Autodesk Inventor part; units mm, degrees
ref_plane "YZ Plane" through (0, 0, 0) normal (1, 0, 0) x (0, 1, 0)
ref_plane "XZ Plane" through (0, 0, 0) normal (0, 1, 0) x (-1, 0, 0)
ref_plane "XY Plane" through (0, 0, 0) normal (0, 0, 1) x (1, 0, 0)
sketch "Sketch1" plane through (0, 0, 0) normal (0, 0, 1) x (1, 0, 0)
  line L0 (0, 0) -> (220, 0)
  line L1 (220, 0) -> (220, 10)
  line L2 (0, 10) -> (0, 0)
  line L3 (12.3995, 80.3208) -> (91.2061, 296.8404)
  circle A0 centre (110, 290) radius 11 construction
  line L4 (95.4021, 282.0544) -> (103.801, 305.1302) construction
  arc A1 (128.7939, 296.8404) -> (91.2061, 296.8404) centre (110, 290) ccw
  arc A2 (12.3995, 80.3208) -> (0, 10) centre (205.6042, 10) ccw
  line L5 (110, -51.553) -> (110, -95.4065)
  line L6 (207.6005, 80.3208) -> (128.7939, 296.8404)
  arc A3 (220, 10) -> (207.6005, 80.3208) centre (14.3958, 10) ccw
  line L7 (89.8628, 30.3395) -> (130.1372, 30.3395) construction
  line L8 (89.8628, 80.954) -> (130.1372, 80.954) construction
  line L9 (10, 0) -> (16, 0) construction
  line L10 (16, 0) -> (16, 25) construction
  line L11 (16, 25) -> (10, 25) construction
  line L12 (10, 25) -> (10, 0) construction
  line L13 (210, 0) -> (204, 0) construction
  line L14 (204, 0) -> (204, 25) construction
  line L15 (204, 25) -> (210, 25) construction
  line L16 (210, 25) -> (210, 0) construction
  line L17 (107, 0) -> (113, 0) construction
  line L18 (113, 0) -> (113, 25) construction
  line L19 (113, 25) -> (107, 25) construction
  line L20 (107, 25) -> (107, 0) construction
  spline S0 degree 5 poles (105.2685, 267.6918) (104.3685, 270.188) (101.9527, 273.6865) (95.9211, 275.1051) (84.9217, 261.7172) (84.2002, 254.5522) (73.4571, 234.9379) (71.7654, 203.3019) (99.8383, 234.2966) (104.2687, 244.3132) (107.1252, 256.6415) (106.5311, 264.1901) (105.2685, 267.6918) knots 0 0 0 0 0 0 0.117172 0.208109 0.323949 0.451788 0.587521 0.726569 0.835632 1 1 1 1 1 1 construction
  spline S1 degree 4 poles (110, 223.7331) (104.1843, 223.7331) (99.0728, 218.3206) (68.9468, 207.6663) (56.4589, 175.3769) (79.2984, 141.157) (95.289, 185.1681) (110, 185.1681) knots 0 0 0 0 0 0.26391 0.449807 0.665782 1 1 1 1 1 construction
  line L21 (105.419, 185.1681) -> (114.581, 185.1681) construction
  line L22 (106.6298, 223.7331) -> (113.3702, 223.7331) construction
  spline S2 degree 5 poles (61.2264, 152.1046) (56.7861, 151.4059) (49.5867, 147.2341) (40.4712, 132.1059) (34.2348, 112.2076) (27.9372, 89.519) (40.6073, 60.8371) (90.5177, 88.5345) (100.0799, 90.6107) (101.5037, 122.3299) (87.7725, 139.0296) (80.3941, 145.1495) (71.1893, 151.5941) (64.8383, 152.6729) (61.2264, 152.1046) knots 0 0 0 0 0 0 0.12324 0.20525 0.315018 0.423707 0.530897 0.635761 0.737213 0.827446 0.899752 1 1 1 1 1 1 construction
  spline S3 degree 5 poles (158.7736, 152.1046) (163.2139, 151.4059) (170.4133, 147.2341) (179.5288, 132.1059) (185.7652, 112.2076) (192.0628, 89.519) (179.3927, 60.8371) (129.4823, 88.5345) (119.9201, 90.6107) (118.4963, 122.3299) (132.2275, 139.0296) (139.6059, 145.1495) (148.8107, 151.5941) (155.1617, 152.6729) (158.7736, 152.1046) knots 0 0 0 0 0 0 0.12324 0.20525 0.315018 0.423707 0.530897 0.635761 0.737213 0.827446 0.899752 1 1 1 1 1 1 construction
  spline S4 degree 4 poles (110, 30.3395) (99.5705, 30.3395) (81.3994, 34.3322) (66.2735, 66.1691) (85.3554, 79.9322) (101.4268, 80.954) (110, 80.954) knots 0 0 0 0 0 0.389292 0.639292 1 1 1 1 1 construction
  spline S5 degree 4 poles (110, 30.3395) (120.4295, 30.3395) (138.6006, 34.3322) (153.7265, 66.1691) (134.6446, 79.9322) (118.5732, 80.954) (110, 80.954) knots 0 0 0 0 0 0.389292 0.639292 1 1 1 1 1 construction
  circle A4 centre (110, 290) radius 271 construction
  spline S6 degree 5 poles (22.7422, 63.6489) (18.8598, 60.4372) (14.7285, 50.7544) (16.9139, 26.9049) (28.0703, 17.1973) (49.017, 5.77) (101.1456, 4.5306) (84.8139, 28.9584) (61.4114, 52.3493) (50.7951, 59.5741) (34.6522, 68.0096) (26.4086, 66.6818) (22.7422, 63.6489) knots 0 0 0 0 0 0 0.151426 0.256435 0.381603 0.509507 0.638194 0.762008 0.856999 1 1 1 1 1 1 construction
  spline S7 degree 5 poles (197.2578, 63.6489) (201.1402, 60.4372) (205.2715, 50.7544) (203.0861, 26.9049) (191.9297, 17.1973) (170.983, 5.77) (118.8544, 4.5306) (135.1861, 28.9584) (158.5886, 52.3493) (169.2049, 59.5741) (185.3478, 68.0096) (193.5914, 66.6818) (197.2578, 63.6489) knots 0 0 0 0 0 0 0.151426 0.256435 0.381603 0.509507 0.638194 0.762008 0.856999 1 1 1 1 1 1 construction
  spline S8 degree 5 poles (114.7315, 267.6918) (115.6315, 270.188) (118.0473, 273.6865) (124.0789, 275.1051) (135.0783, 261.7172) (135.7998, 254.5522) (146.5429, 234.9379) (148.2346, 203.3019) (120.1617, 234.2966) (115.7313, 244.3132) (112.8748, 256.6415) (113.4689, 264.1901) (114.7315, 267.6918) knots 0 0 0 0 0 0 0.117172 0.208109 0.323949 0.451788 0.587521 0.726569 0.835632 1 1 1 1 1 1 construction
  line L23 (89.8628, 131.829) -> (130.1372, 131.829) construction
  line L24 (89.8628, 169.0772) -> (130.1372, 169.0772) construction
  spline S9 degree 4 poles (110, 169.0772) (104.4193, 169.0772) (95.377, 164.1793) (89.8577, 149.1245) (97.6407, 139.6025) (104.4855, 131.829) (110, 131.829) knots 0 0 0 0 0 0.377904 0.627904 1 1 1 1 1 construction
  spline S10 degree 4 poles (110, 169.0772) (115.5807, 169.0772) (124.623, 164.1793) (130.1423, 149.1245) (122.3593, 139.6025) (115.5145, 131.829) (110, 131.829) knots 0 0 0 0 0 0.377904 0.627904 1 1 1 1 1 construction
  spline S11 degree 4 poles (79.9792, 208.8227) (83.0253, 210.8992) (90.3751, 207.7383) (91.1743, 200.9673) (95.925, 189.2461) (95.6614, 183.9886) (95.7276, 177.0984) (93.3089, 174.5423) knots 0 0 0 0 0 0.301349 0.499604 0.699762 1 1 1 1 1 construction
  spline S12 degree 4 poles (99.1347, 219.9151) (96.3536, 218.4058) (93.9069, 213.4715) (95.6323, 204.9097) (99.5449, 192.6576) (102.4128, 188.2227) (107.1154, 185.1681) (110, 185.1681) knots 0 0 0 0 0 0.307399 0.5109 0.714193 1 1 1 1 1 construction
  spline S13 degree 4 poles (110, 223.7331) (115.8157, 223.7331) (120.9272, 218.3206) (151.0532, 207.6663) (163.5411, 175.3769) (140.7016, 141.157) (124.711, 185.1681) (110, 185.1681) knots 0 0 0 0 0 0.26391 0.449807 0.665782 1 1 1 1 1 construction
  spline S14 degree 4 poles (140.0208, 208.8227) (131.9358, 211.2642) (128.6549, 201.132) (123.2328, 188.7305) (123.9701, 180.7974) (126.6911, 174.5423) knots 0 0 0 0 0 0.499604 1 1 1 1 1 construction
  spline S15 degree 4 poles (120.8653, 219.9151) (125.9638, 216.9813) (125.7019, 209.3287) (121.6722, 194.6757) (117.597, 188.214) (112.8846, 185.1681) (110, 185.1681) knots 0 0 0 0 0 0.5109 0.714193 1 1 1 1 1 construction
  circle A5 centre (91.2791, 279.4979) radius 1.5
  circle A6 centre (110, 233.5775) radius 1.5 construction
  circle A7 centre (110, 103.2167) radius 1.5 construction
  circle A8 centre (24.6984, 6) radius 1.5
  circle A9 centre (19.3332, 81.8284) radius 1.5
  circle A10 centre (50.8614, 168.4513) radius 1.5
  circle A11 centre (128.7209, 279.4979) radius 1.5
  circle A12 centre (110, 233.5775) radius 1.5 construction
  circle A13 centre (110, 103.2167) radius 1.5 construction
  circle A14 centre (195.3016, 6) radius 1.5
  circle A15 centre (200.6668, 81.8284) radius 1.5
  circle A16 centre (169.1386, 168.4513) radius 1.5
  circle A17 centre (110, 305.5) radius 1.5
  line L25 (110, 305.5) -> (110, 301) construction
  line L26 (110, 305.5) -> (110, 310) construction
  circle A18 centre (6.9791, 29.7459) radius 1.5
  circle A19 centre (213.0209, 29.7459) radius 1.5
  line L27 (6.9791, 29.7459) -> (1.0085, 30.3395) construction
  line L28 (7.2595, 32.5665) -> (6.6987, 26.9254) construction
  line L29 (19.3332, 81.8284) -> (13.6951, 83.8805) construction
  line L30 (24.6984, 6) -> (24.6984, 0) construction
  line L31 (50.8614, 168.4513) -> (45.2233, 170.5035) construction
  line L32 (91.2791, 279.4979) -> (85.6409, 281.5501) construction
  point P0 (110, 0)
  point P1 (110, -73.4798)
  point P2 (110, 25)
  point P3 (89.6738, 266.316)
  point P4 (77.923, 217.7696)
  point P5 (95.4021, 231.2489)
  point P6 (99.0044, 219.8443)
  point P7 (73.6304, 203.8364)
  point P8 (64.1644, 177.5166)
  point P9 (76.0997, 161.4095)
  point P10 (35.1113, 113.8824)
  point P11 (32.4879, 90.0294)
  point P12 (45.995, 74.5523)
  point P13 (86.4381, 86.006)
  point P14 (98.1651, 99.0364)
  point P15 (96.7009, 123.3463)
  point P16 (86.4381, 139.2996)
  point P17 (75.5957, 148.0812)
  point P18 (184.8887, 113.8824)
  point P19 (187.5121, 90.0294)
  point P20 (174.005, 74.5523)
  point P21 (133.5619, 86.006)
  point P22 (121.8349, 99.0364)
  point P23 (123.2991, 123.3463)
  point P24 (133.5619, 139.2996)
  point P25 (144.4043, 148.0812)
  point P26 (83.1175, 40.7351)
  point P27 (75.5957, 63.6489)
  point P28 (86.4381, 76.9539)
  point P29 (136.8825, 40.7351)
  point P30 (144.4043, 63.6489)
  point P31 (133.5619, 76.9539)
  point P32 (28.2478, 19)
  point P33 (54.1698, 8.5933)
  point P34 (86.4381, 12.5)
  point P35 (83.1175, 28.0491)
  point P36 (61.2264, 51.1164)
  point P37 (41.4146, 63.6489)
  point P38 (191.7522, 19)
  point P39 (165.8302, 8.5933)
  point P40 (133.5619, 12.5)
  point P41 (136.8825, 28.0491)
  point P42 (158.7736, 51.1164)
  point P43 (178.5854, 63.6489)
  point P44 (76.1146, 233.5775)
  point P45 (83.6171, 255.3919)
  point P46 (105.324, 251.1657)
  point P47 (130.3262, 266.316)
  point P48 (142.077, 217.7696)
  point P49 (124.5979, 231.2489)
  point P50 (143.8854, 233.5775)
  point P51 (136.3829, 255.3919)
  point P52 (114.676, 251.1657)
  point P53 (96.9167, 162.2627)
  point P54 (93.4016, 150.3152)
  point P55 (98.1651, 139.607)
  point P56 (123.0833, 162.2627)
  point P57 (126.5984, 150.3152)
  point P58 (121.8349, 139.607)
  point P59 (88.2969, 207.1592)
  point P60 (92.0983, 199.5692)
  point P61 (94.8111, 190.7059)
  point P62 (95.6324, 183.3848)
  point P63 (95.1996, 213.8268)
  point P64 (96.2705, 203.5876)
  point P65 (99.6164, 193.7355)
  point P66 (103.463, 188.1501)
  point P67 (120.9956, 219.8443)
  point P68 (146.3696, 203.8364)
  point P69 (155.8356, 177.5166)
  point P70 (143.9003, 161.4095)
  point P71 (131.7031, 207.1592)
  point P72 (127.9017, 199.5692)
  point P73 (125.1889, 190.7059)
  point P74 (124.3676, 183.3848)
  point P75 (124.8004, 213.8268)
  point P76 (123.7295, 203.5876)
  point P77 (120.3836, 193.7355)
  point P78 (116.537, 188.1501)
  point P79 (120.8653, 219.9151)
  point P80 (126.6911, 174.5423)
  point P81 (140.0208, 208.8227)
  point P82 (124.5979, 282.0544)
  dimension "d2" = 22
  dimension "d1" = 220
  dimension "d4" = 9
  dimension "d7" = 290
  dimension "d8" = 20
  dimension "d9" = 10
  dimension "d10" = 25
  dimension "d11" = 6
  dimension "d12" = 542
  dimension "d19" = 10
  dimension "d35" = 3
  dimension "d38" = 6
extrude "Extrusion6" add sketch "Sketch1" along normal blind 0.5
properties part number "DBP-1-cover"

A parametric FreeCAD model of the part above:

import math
import FreeCAD as App
import Part
import Sketcher

V = App.Vector
Q = App.Units.Quantity

doc = App.newDocument("Part")
body = doc.addObject("PartDesign::Body", "Body")

sketch1 = body.newObject("Sketcher::SketchObject", "Sketch")
sketch1.AttachmentSupport = (doc.getObject("XY_Plane"), [""])
sketch1.MapMode = "FlatFace"
sketch1.addGeometry([
    Part.LineSegment(V(0, 10, 0), V(0, 0, 0)),
    Part.LineSegment(V(0, 0, 0), V(220, 0, 0)),
    Part.LineSegment(V(220, 0, 0), V(220, 10, 0)),
    Part.ArcOfCircle(Part.Circle(V(14.4, 10, 0), V(0, 0, 1), 205.6), math.radians(0), math.radians(20)),
    Part.LineSegment(V(207.6, 80.3, 0), V(128.8, 296.8, 0)),
    Part.ArcOfCircle(Part.Circle(V(110, 290, 0), V(0, 0, 1), 20), math.radians(20), math.radians(160)),
    Part.LineSegment(V(91.2, 296.8, 0), V(12.4, 80.3, 0)),
    Part.ArcOfCircle(Part.Circle(V(205.6, 10, 0), V(0, 0, 1), 205.6), math.radians(160), math.radians(180)),
    Part.Circle(V(24.7, 6, 0), V(0, 0, 1), 1.5),
    Part.Circle(V(7, 29.7, 0), V(0, 0, 1), 1.5),
    Part.Circle(V(19.3, 81.8, 0), V(0, 0, 1), 1.5),
    Part.Circle(V(195.3, 6, 0), V(0, 0, 1), 1.5),
    Part.Circle(V(213, 29.7, 0), V(0, 0, 1), 1.5),
    Part.Circle(V(200.7, 81.8, 0), V(0, 0, 1), 1.5),
    Part.Circle(V(50.9, 168.5, 0), V(0, 0, 1), 1.5),
    Part.Circle(V(91.3, 279.5, 0), V(0, 0, 1), 1.5),
    Part.Circle(V(110, 305.5, 0), V(0, 0, 1), 1.5),
    Part.Circle(V(169.1, 168.5, 0), V(0, 0, 1), 1.5),
    Part.Circle(V(128.7, 279.5, 0), V(0, 0, 1), 1.5),
], False)
sketch1.addConstraint([
    Sketcher.Constraint("Coincident", 0, 2, 1, 1),
    Sketcher.Constraint("Coincident", 1, 2, 2, 1),
    Sketcher.Constraint("Tangent", 2, 2, 3, 1),
    Sketcher.Constraint("Tangent", 3, 2, 4, 1),
    Sketcher.Constraint("Tangent", 4, 2, 5, 1),
    Sketcher.Constraint("Tangent", 5, 2, 6, 1),
    Sketcher.Constraint("Tangent", 6, 2, 7, 1),
    Sketcher.Constraint("Tangent", 7, 2, 0, 1),
    Sketcher.Constraint("Vertical", 0),
    Sketcher.Constraint("Horizontal", 1),
    Sketcher.Constraint("Vertical", 2),
    Sketcher.Constraint("Coincident", 0, 2, -1, 1),
    Sketcher.Constraint("Equal", 8, 9),
    Sketcher.Constraint("Equal", 9, 10),
    Sketcher.Constraint("Equal", 10, 11),
    Sketcher.Constraint("Equal", 11, 12),
    Sketcher.Constraint("Equal", 12, 13),
    Sketcher.Constraint("Equal", 13, 14),
    Sketcher.Constraint("Equal", 14, 15),
    Sketcher.Constraint("Equal", 15, 16),
    Sketcher.Constraint("Equal", 16, 17),
    Sketcher.Constraint("Equal", 17, 18),
    Sketcher.Constraint("Horizontal", 8, 3, 11, 3),
    Sketcher.Constraint("Horizontal", 9, 3, 12, 3),
    Sketcher.Constraint("Horizontal", 10, 3, 13, 3),
    Sketcher.Constraint("Horizontal", 14, 3, 17, 3),
    Sketcher.Constraint("Horizontal", 15, 3, 18, 3),
    Sketcher.Constraint("Horizontal", 4, 2, 5, 2),
    Sketcher.Constraint("Horizontal", 3, 2, 6, 2),
    Sketcher.Constraint("Vertical", 5, 3, 16, 3),
    Sketcher.Constraint("Equal", 0, 2),
    Sketcher.Constraint("Diameter", 8, Q("3 mm")),
    Sketcher.Constraint("Radius", 5, Q("20 mm")),
    Sketcher.Constraint("DistanceX", 1, 1, 1, 2, Q("220 mm")),
    Sketcher.Constraint("DistanceY", 0, 2, 0, 1, Q("10 mm")),
    Sketcher.Constraint("DistanceY", -1, 1, 5, 3, Q("290 mm")),
    Sketcher.Constraint("DistanceY", -1, 1, 8, 3, Q("6 mm")),
    Sketcher.Constraint("Angle", 4, Q("110 deg")),
    Sketcher.Constraint("DistanceY", -1, 1, 16, 3, Q("305.5 mm")),
    Sketcher.Constraint("DistanceX", 9, 3, 15, 3, Q("84.3 mm")),
    Sketcher.Constraint("DistanceX", -1, 1, 9, 3, Q("6.979 mm")),
    Sketcher.Constraint("DistanceY", -1, 1, 9, 3, Q("29.746 mm")),
    Sketcher.Constraint("DistanceX", -1, 1, 12, 3, Q("213.021 mm")),
    Sketcher.Constraint("DistanceY", -1, 1, 15, 3, Q("279.498 mm")),
    Sketcher.Constraint("DistanceX", -1, 1, 18, 3, Q("128.721 mm")),
    Sketcher.Constraint("DistanceX", 8, 3, 7, 3, Q("180.907 mm")),
    Sketcher.Constraint("DistanceX", 9, 3, 10, 3, Q("12.354 mm")),
    Sketcher.Constraint("DistanceX", 13, 3, 12, 3, Q("12.354 mm")),
    Sketcher.Constraint("DistanceY", 10, 3, 14, 3, Q("86.623 mm")),
    Sketcher.Constraint("DistanceX", 8, 3, 14, 3, Q("26.163 mm")),
    Sketcher.Constraint("DistanceX", 11, 3, 3, 2, Q("12.299 mm")),
    Sketcher.Constraint("DistanceY", 17, 3, 4, 2, Q("128.389 mm")),
    Sketcher.Constraint("DistanceX", -1, 1, 17, 3, Q("169.1386 mm")),
])
pad1 = body.newObject("PartDesign::Pad", "Pad")
pad1.Profile = sketch1
pad1.Length = 0.5

doc.recompute()
